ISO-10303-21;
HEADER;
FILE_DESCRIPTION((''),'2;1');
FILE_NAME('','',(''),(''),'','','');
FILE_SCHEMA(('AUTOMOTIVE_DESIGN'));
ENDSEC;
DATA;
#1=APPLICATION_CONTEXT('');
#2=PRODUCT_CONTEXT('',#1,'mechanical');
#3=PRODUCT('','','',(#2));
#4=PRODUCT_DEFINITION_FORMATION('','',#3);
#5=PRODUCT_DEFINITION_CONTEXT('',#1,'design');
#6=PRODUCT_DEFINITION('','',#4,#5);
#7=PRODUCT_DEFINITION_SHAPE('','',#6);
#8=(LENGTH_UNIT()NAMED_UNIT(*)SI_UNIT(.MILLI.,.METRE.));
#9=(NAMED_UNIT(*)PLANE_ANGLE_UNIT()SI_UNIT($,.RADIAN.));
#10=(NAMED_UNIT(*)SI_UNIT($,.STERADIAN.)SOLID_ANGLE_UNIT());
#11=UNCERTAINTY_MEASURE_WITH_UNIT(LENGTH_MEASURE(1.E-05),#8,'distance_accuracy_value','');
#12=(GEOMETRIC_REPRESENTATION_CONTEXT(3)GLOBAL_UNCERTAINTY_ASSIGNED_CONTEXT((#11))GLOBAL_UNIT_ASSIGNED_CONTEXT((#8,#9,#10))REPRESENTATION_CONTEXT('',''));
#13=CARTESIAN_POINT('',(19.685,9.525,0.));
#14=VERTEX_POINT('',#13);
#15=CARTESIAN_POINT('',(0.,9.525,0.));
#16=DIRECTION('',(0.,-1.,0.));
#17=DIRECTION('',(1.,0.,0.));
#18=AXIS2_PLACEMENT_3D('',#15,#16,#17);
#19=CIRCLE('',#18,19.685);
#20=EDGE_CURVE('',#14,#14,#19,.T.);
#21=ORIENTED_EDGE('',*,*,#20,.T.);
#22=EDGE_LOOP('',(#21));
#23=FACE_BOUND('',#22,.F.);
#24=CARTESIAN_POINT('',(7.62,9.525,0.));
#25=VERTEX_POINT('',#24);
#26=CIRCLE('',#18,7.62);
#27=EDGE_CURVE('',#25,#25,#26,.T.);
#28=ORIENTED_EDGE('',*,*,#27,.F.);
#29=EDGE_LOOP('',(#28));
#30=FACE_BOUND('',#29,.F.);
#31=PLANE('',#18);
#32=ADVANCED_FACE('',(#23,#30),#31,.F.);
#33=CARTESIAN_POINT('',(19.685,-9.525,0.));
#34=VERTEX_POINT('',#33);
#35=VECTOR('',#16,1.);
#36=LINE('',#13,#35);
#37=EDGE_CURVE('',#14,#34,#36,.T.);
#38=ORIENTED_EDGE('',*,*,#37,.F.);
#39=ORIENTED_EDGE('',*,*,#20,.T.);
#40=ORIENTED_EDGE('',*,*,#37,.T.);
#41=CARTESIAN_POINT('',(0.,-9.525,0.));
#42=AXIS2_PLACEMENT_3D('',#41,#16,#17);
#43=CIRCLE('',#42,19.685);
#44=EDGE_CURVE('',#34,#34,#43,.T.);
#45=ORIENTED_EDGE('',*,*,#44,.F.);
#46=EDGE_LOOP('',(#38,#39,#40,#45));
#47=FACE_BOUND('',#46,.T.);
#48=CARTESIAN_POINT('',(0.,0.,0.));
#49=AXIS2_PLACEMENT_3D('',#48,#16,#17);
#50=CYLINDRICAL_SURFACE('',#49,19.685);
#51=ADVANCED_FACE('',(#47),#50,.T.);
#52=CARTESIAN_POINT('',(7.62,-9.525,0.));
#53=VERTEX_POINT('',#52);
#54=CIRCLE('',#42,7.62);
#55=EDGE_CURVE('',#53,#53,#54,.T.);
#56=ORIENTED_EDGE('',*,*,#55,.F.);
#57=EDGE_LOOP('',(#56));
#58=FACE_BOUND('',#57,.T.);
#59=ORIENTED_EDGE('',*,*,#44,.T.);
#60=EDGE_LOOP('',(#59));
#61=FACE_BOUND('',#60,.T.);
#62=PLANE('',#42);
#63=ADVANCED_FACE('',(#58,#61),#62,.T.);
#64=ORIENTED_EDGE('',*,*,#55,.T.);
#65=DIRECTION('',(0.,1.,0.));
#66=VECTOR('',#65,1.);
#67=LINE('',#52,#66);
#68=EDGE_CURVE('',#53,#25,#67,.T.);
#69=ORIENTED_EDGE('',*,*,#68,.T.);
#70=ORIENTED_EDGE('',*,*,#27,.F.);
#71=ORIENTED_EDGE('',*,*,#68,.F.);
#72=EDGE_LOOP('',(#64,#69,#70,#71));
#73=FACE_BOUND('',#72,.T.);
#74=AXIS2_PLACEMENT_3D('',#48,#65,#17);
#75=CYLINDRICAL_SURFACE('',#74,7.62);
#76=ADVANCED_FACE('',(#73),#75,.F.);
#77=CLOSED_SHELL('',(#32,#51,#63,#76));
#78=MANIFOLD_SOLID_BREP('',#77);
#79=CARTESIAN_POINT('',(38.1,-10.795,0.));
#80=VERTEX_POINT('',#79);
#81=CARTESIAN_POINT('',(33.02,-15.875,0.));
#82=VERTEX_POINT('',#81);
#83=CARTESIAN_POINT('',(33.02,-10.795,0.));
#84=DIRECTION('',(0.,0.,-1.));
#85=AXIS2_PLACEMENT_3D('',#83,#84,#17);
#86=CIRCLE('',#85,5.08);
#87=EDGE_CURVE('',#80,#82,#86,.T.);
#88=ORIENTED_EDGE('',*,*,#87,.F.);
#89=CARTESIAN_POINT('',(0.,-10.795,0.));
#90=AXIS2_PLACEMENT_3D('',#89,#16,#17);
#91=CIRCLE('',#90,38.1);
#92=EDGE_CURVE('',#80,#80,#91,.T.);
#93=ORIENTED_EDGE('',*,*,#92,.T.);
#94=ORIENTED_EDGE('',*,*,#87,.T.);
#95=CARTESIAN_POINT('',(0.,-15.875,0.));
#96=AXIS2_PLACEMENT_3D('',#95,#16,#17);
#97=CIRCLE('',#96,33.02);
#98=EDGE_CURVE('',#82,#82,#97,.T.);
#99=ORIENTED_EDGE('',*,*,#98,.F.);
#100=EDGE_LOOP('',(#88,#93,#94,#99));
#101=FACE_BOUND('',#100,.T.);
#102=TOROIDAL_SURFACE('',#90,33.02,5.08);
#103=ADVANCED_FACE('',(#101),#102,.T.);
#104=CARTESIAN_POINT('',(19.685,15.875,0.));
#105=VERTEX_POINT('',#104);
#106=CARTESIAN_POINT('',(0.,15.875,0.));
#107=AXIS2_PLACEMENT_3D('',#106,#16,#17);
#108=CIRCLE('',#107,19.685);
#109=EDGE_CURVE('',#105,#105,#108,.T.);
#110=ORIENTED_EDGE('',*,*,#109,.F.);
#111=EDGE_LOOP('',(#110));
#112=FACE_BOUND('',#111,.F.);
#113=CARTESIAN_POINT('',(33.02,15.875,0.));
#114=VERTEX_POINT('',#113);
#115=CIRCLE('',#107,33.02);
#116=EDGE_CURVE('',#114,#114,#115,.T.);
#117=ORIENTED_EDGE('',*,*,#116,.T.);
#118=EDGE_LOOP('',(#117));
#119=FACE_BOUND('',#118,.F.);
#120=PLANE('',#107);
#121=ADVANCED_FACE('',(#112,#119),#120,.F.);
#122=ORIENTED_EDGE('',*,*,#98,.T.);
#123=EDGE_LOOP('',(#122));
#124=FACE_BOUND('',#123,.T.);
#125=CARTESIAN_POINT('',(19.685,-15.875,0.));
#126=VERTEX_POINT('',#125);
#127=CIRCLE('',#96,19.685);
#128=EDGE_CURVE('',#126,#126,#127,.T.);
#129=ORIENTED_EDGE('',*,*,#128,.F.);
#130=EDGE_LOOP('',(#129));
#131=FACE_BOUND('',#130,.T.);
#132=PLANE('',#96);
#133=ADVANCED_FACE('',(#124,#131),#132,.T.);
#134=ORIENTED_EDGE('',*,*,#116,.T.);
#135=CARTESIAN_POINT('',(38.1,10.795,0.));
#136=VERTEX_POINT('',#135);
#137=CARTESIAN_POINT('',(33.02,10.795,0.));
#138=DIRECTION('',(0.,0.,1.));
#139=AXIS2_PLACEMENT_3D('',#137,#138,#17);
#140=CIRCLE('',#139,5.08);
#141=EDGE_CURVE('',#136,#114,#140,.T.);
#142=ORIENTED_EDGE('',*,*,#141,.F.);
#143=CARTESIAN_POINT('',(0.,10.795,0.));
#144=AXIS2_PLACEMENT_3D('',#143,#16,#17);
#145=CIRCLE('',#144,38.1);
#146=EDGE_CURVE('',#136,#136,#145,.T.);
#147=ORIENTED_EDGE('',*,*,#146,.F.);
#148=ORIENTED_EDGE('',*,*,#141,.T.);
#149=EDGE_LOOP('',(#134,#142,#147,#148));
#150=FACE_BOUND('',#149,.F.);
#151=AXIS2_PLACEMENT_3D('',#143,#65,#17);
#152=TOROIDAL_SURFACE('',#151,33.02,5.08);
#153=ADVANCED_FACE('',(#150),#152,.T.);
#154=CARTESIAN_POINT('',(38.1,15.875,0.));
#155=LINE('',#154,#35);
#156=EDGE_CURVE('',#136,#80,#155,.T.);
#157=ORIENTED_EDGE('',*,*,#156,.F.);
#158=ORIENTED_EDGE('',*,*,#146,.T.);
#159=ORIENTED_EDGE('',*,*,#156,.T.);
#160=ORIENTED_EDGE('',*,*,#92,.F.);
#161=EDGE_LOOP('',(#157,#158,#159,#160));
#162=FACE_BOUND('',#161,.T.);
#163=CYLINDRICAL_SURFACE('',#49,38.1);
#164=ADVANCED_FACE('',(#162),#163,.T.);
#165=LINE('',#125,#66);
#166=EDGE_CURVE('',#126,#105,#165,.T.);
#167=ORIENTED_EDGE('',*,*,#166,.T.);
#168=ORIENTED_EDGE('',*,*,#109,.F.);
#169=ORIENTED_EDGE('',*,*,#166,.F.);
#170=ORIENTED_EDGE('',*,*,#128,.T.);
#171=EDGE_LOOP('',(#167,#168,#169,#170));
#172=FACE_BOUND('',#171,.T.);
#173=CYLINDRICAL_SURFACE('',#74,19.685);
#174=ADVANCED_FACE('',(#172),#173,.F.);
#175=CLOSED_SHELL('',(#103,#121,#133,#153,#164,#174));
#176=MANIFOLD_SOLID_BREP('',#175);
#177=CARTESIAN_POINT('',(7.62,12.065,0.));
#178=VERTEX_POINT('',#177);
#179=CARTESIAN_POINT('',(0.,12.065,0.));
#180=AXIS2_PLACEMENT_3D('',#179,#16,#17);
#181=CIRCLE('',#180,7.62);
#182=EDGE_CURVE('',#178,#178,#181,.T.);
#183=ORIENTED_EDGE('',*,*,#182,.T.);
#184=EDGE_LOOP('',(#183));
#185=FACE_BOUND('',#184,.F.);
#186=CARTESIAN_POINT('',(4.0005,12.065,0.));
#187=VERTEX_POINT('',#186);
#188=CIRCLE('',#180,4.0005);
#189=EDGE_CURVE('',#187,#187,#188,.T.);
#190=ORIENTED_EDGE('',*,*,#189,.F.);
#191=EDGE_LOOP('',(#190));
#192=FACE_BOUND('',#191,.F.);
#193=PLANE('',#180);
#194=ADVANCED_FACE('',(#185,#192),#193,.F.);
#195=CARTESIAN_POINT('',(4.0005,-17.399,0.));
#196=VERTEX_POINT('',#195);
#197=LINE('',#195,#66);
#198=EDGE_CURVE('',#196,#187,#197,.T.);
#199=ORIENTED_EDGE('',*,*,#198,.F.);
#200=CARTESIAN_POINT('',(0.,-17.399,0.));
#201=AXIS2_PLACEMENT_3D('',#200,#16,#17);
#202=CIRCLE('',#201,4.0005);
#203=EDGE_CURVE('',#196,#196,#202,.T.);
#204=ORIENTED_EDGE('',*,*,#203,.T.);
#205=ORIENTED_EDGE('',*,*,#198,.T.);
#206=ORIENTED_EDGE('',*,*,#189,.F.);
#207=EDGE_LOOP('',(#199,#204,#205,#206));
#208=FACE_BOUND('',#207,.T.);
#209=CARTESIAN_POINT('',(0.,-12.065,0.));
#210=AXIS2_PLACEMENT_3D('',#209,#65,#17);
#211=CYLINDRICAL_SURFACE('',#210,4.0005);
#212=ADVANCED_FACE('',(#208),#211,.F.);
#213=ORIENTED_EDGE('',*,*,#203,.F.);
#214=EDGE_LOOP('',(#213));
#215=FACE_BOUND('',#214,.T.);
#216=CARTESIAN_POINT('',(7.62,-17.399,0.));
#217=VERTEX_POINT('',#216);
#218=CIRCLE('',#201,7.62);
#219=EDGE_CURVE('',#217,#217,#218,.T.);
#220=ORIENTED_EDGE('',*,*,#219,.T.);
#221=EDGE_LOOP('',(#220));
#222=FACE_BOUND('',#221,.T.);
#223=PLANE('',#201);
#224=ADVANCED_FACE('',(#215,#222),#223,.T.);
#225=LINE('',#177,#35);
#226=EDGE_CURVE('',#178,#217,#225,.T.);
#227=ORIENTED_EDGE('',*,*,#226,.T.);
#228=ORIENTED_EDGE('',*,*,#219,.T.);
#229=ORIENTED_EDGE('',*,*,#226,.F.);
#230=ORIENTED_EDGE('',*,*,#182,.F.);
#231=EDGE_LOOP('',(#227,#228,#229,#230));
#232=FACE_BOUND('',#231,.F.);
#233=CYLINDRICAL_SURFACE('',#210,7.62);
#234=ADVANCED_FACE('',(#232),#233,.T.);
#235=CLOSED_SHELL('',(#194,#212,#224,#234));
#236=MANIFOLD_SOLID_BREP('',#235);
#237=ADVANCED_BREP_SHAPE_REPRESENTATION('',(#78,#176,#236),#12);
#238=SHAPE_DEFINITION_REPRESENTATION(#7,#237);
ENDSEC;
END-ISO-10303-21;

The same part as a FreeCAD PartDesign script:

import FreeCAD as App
import Part
import Sketcher

V = App.Vector
Q = App.Units.Quantity


def edges_at(feature, points):
    """Names of the edges that pass closest to the given points."""
    edges = feature.Shape.Edges
    near = lambda p: min(range(len(edges)), key=lambda i: edges[i].distToShape(Part.Vertex(*p))[0])
    return sorted({f"Edge{near(p) + 1}" for p in points})

doc = App.newDocument("Part")
params = doc.addObject("Spreadsheet::Sheet", "Params")
for row, (alias, value) in enumerate([
    ("sketch1_diameter", "3 in"),
    ("sketch1_diameter2", "1.55 in"),
    ("pad1_length", "1.25 in"),
    ("fillet_radius", "0.2 in"),
    ("sketch2_diameter", "0.6 in"),
    ("sketch2_diameter2", "0.315 in"),
    ("pad2_length", "0.95 in"),
    ("sketch3_diameter", "0.6 in"),
    ("sketch3_diameter2", "0.315 in"),
    ("pad3_length", "0.21 in"),
    ("sketch4_diameter", "0.6 in"),
    ("sketch4_diameter2", "1.55 in"),
    ("pad4_length", "0.75 in"),
], start=1):
    params.set(f"A{row}", alias)
    params.set(f"B{row}", "=" + value)
    params.setAlias(f"B{row}", alias)

body = doc.addObject("PartDesign::Body", "Body")

# Sketch on XZ plane
sketch1 = body.newObject("Sketcher::SketchObject", "Sketch")
sketch1.AttachmentSupport = (doc.getObject("XZ_Plane"), [""])
sketch1.MapMode = "FlatFace"
sketch1.addGeometry(Part.Circle(V(0, 0, 0), V(0, 0, 1), 38), False)
sketch1.addGeometry(Part.Circle(V(0, 0, 0), V(0, 0, 1), 20), False)
sketch1.addConstraint(Sketcher.Constraint("Coincident", 0, 3, -1, 1))
sketch1.addConstraint(Sketcher.Constraint("Coincident", 1, 3, -1, 1))
sketch1.addConstraint(Sketcher.Constraint("Diameter", 0, Q("3 in")))
sketch1.addConstraint(Sketcher.Constraint("Diameter", 1, Q("1.55 in")))
sketch1.setExpression("Constraints[2]", "Params.sketch1_diameter")
sketch1.setExpression("Constraints[3]", "Params.sketch1_diameter2")
pad1 = body.newObject("PartDesign::Pad", "Pad")
pad1.Profile = sketch1
pad1.setExpression("Length", "Params.pad1_length")
pad1.Midplane = True
doc.recompute()

fillet = body.newObject("PartDesign::Fillet", "Fillet")
fillet.Base = (pad1, edges_at(pad1, [(-38.1, -15.875, 0), (-38.1, 15.875, 0)]))
fillet.setExpression("Radius", "Params.fillet_radius")
body2 = doc.addObject("PartDesign::Body", "Body001")

# Sketch on XZ plane
sketch2 = body2.newObject("Sketcher::SketchObject", "Sketch001")
sketch2.AttachmentSupport = (doc.getObject("XZ_Plane001"), [""])
sketch2.MapMode = "FlatFace"
sketch2.addGeometry(Part.Circle(V(0, 0, 0), V(0, 0, 1), 7.6), False)
sketch2.addGeometry(Part.Circle(V(0, 0, 0), V(0, 0, 1), 4), False)
sketch2.addConstraint(Sketcher.Constraint("Coincident", 0, 3, -1, 1))
sketch2.addConstraint(Sketcher.Constraint("Coincident", 1, 3, -1, 1))
sketch2.addConstraint(Sketcher.Constraint("Diameter", 0, Q("0.6 in")))
sketch2.addConstraint(Sketcher.Constraint("Diameter", 1, Q("0.315 in")))
sketch2.setExpression("Constraints[2]", "Params.sketch2_diameter")
sketch2.setExpression("Constraints[3]", "Params.sketch2_diameter2")
pad2 = body2.newObject("PartDesign::Pad", "Pad001")
pad2.Profile = sketch2
pad2.setExpression("Length", "Params.pad2_length")
pad2.Midplane = True

# Sketch on XZ plane
sketch3 = body2.newObject("Sketcher::SketchObject", "Sketch002")
sketch3.AttachmentSupport = (doc.getObject("XZ_Plane001"), [""])
sketch3.MapMode = "FlatFace"
sketch3.AttachmentOffset = App.Placement(V(0, 0, 0.475 * 25.4), App.Rotation())
sketch3.addGeometry(Part.Circle(V(0, 0, 0), V(0, 0, 1), 7.6), False)
sketch3.addGeometry(Part.Circle(V(0, 0, 0), V(0, 0, 1), 4), False)
sketch3.addConstraint(Sketcher.Constraint("Coincident", 0, 3, -1, 1))
sketch3.addConstraint(Sketcher.Constraint("Coincident", 1, 3, -1, 1))
sketch3.addConstraint(Sketcher.Constraint("Diameter", 0, Q("0.6 in")))
sketch3.addConstraint(Sketcher.Constraint("Diameter", 1, Q("0.315 in")))
sketch3.setExpression("Constraints[2]", "Params.sketch3_diameter")
sketch3.setExpression("Constraints[3]", "Params.sketch3_diameter2")
pad3 = body2.newObject("PartDesign::Pad", "Pad002")
pad3.Profile = sketch3
pad3.setExpression("Length", "Params.pad3_length")
body3 = doc.addObject("PartDesign::Body", "Body002")

# Sketch on XZ plane
sketch4 = body3.newObject("Sketcher::SketchObject", "Sketch003")
sketch4.AttachmentSupport = (doc.getObject("XZ_Plane002"), [""])
sketch4.MapMode = "FlatFace"
sketch4.addGeometry(Part.Circle(V(0, 0, 0), V(0, 0, 1), 20), False)
sketch4.addGeometry(Part.Circle(V(0, 0, 0), V(0, 0, 1), 8), False)
sketch4.addConstraint(Sketcher.Constraint("Coincident", 0, 3, -1, 1))
sketch4.addConstraint(Sketcher.Constraint("Coincident", 1, 3, -1, 1))
sketch4.addConstraint(Sketcher.Constraint("Diameter", 1, Q("0.6 in")))
sketch4.addConstraint(Sketcher.Constraint("Diameter", 0, Q("1.55 in")))
sketch4.setExpression("Constraints[2]", "Params.sketch4_diameter")
sketch4.setExpression("Constraints[3]", "Params.sketch4_diameter2")
pad4 = body3.newObject("PartDesign::Pad", "Pad003")
pad4.Profile = sketch4
pad4.setExpression("Length", "Params.pad4_length")
pad4.Midplane = True

doc.recompute()
